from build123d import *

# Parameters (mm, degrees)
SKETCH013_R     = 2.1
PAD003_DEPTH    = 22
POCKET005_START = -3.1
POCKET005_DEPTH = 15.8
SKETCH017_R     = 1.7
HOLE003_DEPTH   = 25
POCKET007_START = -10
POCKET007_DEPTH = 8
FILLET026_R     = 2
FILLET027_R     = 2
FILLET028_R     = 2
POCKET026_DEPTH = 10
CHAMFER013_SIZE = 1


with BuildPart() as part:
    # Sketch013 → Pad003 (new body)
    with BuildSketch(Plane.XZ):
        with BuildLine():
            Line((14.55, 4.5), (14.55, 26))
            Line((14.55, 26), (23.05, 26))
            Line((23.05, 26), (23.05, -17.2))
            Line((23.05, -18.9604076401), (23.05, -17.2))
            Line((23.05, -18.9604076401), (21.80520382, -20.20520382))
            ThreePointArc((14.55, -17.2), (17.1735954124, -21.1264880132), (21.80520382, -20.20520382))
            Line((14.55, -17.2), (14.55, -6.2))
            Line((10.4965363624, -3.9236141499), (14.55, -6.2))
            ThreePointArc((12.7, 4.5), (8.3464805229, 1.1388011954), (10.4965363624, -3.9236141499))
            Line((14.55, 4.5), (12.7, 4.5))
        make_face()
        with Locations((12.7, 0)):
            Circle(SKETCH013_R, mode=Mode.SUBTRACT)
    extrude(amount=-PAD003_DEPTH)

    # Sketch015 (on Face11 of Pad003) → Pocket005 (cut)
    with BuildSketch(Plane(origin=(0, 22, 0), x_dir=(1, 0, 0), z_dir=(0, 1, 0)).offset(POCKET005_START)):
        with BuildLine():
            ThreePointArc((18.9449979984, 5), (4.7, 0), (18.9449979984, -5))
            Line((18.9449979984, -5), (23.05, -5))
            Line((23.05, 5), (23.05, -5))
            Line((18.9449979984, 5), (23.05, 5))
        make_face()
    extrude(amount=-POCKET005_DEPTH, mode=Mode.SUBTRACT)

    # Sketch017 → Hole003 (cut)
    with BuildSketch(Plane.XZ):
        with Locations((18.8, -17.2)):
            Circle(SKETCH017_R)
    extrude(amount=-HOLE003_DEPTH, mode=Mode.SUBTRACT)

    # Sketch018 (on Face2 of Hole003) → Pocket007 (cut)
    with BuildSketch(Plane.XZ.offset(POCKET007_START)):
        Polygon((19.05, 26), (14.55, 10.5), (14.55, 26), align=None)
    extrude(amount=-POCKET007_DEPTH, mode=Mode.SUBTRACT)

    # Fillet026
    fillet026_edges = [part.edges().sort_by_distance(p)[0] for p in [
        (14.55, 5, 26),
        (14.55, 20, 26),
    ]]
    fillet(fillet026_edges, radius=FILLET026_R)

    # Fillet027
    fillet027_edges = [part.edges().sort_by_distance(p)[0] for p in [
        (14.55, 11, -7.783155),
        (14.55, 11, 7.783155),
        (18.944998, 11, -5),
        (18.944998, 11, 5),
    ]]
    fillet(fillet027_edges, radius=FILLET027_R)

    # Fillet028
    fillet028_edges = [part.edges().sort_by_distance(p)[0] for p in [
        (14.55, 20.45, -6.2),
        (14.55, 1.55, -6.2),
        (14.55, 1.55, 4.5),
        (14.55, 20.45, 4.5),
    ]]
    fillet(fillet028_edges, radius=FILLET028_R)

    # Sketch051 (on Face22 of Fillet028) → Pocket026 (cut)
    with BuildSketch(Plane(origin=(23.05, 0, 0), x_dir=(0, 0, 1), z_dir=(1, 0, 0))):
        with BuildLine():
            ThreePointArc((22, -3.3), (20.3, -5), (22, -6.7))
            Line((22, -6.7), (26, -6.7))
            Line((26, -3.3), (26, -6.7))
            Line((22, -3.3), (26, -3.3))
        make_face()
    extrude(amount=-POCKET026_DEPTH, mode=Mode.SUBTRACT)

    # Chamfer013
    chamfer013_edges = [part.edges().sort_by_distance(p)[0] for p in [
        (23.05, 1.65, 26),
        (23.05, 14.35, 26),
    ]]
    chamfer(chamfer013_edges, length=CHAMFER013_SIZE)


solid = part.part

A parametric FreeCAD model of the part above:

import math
import FreeCAD as App
import Part
import Sketcher

V = App.Vector
Q = App.Units.Quantity


def edges_at(feature, points):
    """Names of the edges that pass closest to the given points."""
    edges = feature.Shape.Edges
    near = lambda p: min(range(len(edges)), key=lambda i: edges[i].distToShape(Part.Vertex(*p))[0])
    return sorted({f"Edge{near(p) + 1}" for p in points})

doc = App.newDocument("Part")
body = doc.addObject("PartDesign::Body", "Body")

# Sketch on XZ plane
sketch1 = doc.addObject("Sketcher::SketchObject", "Sketch")
body.addObject(sketch1)
sketch1.AttachmentSupport = (doc.XZ_Plane, [""])
sketch1.MapMode = "FlatFace"
sketch1.addGeometry(Part.LineSegment(V(14.55, 26, 0), V(14.55, 4.5, 0)), False)
sketch1.addGeometry(Part.LineSegment(V(14.55, 4.5, 0), V(12.7, 4.5, 0)), False)
sketch1.addGeometry(Part.ArcOfCircle(Part.Circle(V(12.7, 0, 0), V(0, 0, 1), 4.5), math.radians(90), math.radians(240.681856)), False)
sketch1.addGeometry(Part.LineSegment(V(10.496536, -3.923614, 0), V(14.55, -6.2, 0)), False)
sketch1.addGeometry(Part.LineSegment(V(14.55, -6.2, 0), V(14.55, -17.2, 0)), False)
sketch1.addGeometry(Part.ArcOfCircle(Part.Circle(V(18.8, -17.2, 0), V(0, 0, 1), 4.25), math.radians(180), math.radians(315)), False)
sketch1.addGeometry(Part.LineSegment(V(21.805204, -20.205204, 0), V(23.05, -18.960408, 0)), False)
sketch1.addGeometry(Part.LineSegment(V(23.05, -18.960408, 0), V(23.05, 26, 0)), False)
sketch1.addGeometry(Part.LineSegment(V(23.05, 26, 0), V(14.55, 26, 0)), False)
sketch1.addGeometry(Part.Circle(V(12.7, 0, 0), V(0, 0, 1), 2.1), False)
sketch1.addConstraint(Sketcher.Constraint("Coincident", 0, 2, 1, 1))
sketch1.addConstraint(Sketcher.Constraint("Tangent", 1, 2, 2, 1))
sketch1.addConstraint(Sketcher.Constraint("Tangent", 2, 2, 3, 1))
sketch1.addConstraint(Sketcher.Constraint("Coincident", 3, 2, 4, 1))
sketch1.addConstraint(Sketcher.Constraint("Tangent", 4, 2, 5, 1))
sketch1.addConstraint(Sketcher.Constraint("Tangent", 5, 2, 6, 1))
sketch1.addConstraint(Sketcher.Constraint("Coincident", 6, 2, 7, 1))
sketch1.addConstraint(Sketcher.Constraint("Coincident", 7, 2, 8, 1))
sketch1.addConstraint(Sketcher.Constraint("Coincident", 8, 2, 0, 1))
sketch1.addConstraint(Sketcher.Constraint("Vertical", 0))
sketch1.addConstraint(Sketcher.Constraint("Horizontal", 1))
sketch1.addConstraint(Sketcher.Constraint("Vertical", 4))
sketch1.addConstraint(Sketcher.Constraint("Vertical", 7))
sketch1.addConstraint(Sketcher.Constraint("Horizontal", 8))
sketch1.addConstraint(Sketcher.Constraint("Coincident", 9, 3, 2, 3))
sketch1.addConstraint(Sketcher.Constraint("PointOnObject", 2, 3, -1))
sketch1.addConstraint(Sketcher.Constraint("Vertical", 0, 2, 3, 2))
sketch1.addConstraint(Sketcher.Constraint("Diameter", 9, 4.2))
sketch1.addConstraint(Sketcher.Constraint("Radius", 2, 4.5))
sketch1.addConstraint(Sketcher.Constraint("DistanceY", 4, 2, 4, 1, 11.0))
sketch1.addConstraint(Sketcher.Constraint("Angle", 6, Q("45 deg")))
sketch1.addConstraint(Sketcher.Constraint("Radius", 5, 4.25))
sketch1.addConstraint(Sketcher.Constraint("DistanceX", 8, 2, 8, 1, 8.5))
sketch1.addConstraint(Sketcher.Constraint("DistanceY", 0, 2, 0, 1, 21.5))
sketch1.addConstraint(Sketcher.Constraint("DistanceX", 1, 2, 1, 1, 1.85))
sketch1.addConstraint(Sketcher.Constraint("DistanceX", -1, 1, 2, 3, 12.7))
sketch1.addConstraint(Sketcher.Constraint("DistanceY", 5, 3, -1, 1, 17.2))
pad1 = doc.addObject("PartDesign::Pad", "Pad")
body.addObject(pad1)
pad1.Profile = sketch1
pad1.Length = 22
pad1.Reversed = True

# Sketch on XZ plane
sketch2 = doc.addObject("Sketcher::SketchObject", "Sketch001")
body.addObject(sketch2)
sketch2.AttachmentSupport = (doc.XZ_Plane, [""])
sketch2.MapMode = "FlatFace"
sketch2.AttachmentOffset = App.Placement(V(0, 0, -18.9), App.Rotation())
sketch2.addGeometry(Part.ArcOfCircle(Part.Circle(V(12.7, 0, 0), V(0, 0, 1), 8), math.radians(38.682187), math.radians(321.317813)), False)
sketch2.addGeometry(Part.LineSegment(V(18.944998, 5, 0), V(23.05, 5, 0)), False)
sketch2.addGeometry(Part.LineSegment(V(23.05, 5, 0), V(23.05, -5, 0)), False)
sketch2.addGeometry(Part.LineSegment(V(23.05, -5, 0), V(18.944998, -5, 0)), False)
sketch2.addConstraint(Sketcher.Constraint("Coincident", 0, 1, 1, 1))
sketch2.addConstraint(Sketcher.Constraint("Coincident", 1, 2, 2, 1))
sketch2.addConstraint(Sketcher.Constraint("Coincident", 2, 2, 3, 1))
sketch2.addConstraint(Sketcher.Constraint("Coincident", 3, 2, 0, 2))
sketch2.addConstraint(Sketcher.Constraint("Horizontal", 1))
sketch2.addConstraint(Sketcher.Constraint("Vertical", 2))
sketch2.addConstraint(Sketcher.Constraint("Horizontal", 3))
sketch2.addConstraint(Sketcher.Constraint("Symmetric", 0, 1, 3, 2, -1))
sketch2.addConstraint(Sketcher.Constraint("Radius", 0, 8.0))
sketch2.addConstraint(Sketcher.Constraint("DistanceY", 2, 2, 2, 1, 10.0))
sketch2.addConstraint(Sketcher.Constraint("DistanceX", -1, 1, 0, 3, 12.7))
sketch2.addConstraint(Sketcher.Constraint("DistanceX", -1, 1, 1, 2, 23.05))
pocket1 = doc.addObject("PartDesign::Pocket", "Pocket")
body.addObject(pocket1)
pocket1.Profile = sketch2
pocket1.Length = 15.8
pocket1.Reversed = True

# Sketch on XZ plane
sketch3 = doc.addObject("Sketcher::SketchObject", "Sketch002")
body.addObject(sketch3)
sketch3.AttachmentSupport = (doc.XZ_Plane, [""])
sketch3.MapMode = "FlatFace"
sketch3.addGeometry(Part.Circle(V(18.8, -17.2, 0), V(0, 0, 1), 1.7), False)
sketch3.addConstraint(Sketcher.Constraint("Diameter", 0, 3.4))
sketch3.addConstraint(Sketcher.Constraint("DistanceX", -1, 1, 0, 3, 18.8))
sketch3.addConstraint(Sketcher.Constraint("DistanceY", 0, 3, -1, 1, 17.2))
pocket2 = doc.addObject("PartDesign::Pocket", "Pocket001")
body.addObject(pocket2)
pocket2.Profile = sketch3
pocket2.Length = 25

# Sketch on XZ plane
sketch4 = doc.addObject("Sketcher::SketchObject", "Sketch003")
body.addObject(sketch4)
sketch4.AttachmentSupport = (doc.XZ_Plane, [""])
sketch4.MapMode = "FlatFace"
sketch4.AttachmentOffset = App.Placement(V(0, 0, -10), App.Rotation())
sketch4.addGeometry(Part.LineSegment(V(14.55, 10.5, 0), V(19.05, 26, 0)), False)
sketch4.addGeometry(Part.LineSegment(V(19.05, 26, 0), V(14.55, 26, 0)), False)
sketch4.addGeometry(Part.LineSegment(V(14.55, 26, 0), V(14.55, 10.5, 0)), False)
sketch4.addConstraint(Sketcher.Constraint("Coincident", 0, 2, 1, 1))
sketch4.addConstraint(Sketcher.Constraint("Coincident", 1, 2, 2, 1))
sketch4.addConstraint(Sketcher.Constraint("Coincident", 2, 2, 0, 1))
sketch4.addConstraint(Sketcher.Constraint("Horizontal", 1))
sketch4.addConstraint(Sketcher.Constraint("Vertical", 2))
sketch4.addConstraint(Sketcher.Constraint("DistanceX", 1, 2, 1, 1, 4.5))
sketch4.addConstraint(Sketcher.Constraint("DistanceY", 2, 2, 2, 1, 15.5))
sketch4.addConstraint(Sketcher.Constraint("DistanceY", -1, 1, 0, 2, 26.0))
sketch4.addConstraint(Sketcher.Constraint("DistanceX", -1, 1, 0, 2, 19.05))
pocket3 = doc.addObject("PartDesign::Pocket", "Pocket002")
body.addObject(pocket3)
pocket3.Profile = sketch4
pocket3.Length = 8
doc.recompute()

fillet = doc.addObject("PartDesign::Fillet", "Fillet")
body.addObject(fillet)
fillet.Base = (pocket3, edges_at(pocket3, [(14.55, 5, 26), (14.55, 20, 26)]))
fillet.Radius = 2
doc.recompute()

fillet2 = doc.addObject("PartDesign::Fillet", "Fillet001")
body.addObject(fillet2)
fillet2.Base = (fillet, edges_at(fillet, [
    (14.55, 11, -7.783),
    (14.55, 11, 7.783),
    (18.945, 11, -5),
    (18.945, 11, 5),
]))
fillet2.Radius = 2
doc.recompute()

fillet3 = doc.addObject("PartDesign::Fillet", "Fillet002")
body.addObject(fillet3)
fillet3.Base = (fillet2, edges_at(fillet2, [
    (14.55, 20.45, -6.2),
    (14.55, 1.55, -6.2),
    (14.55, 1.55, 4.5),
    (14.55, 20.45, 4.5),
]))
fillet3.Radius = 2

# Sketch on YZ plane
sketch5 = doc.addObject("Sketcher::SketchObject", "Sketch004")
body.addObject(sketch5)
sketch5.AttachmentSupport = (doc.YZ_Plane, [""])
sketch5.MapMode = "FlatFace"
sketch5.AttachmentOffset = App.Placement(V(0, 0, 23.05), App.Rotation())
sketch5.addGeometry(Part.ArcOfCircle(Part.Circle(V(5, 22, 0), V(0, 0, 1), 1.7), math.radians(180), math.radians(360)), False)
sketch5.addGeometry(Part.LineSegment(V(6.7, 22, 0), V(6.7, 26, 0)), False)
sketch5.addGeometry(Part.LineSegment(V(6.7, 26, 0), V(3.3, 26, 0)), False)
sketch5.addGeometry(Part.LineSegment(V(3.3, 26, 0), V(3.3, 22, 0)), False)
sketch5.addConstraint(Sketcher.Constraint("Tangent", 0, 2, 1, 1))
sketch5.addConstraint(Sketcher.Constraint("Coincident", 1, 2, 2, 1))
sketch5.addConstraint(Sketcher.Constraint("Coincident", 2, 2, 3, 1))
sketch5.addConstraint(Sketcher.Constraint("Tangent", 3, 2, 0, 1))
sketch5.addConstraint(Sketcher.Constraint("Vertical", 1))
sketch5.addConstraint(Sketcher.Constraint("Horizontal", 2))
sketch5.addConstraint(Sketcher.Constraint("Vertical", 3))
sketch5.addConstraint(Sketcher.Constraint("Radius", 0, 1.7))
sketch5.addConstraint(Sketcher.Constraint("DistanceY", 1, 1, 1, 2, 4.0))
sketch5.addConstraint(Sketcher.Constraint("DistanceX", -1, 1, 0, 3, 5.0))
sketch5.addConstraint(Sketcher.Constraint("DistanceY", -1, 1, 0, 3, 22.0))
pocket4 = doc.addObject("PartDesign::Pocket", "Pocket003")
body.addObject(pocket4)
pocket4.Profile = sketch5
pocket4.Length = 10
doc.recompute()

chamfer = doc.addObject("PartDesign::Chamfer", "Chamfer")
body.addObject(chamfer)
chamfer.Base = (pocket4, edges_at(pocket4, [(23.05, 1.65, 26), (23.05, 14.35, 26)]))
chamfer.Size = 1

doc.recompute()
